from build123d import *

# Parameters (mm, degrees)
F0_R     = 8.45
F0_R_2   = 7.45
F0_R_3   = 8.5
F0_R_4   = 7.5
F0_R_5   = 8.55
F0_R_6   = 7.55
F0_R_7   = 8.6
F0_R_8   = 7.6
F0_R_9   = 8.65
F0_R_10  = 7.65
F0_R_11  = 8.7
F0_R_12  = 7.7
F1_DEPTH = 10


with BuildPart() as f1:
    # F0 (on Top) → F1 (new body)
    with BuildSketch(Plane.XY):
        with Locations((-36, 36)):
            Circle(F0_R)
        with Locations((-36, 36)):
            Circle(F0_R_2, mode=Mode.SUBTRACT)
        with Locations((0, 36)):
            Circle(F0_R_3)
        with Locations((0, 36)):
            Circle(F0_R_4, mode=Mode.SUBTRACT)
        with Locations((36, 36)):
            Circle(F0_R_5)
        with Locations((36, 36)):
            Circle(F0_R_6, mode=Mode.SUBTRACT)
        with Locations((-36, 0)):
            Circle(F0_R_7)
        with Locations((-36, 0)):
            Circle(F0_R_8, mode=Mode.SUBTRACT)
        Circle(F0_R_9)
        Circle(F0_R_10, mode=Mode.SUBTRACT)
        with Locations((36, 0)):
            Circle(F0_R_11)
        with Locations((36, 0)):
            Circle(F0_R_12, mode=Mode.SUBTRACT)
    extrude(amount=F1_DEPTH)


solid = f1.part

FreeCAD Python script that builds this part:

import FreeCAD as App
import Part
import Sketcher
Q = App.Units.Quantity

doc = App.newDocument("Part")
body = doc.addObject("PartDesign::Body", "Body")
body.AllowCompound = True

sketch1 = body.newObject("Sketcher::SketchObject", "Sketch")
sketch1.AttachmentSupport = (doc.getObject("XY_Plane"), [""])
sketch1.MapMode = "FlatFace"
sketch1.addGeometry([
    Part.Circle(App.Vector(-36, 36, 0), App.Vector(0, 0, 1), 8),
    Part.Circle(App.Vector(-36, 36, 0), App.Vector(0, 0, 1), 7),
    Part.Circle(App.Vector(0, 36, 0), App.Vector(0, 0, 1), 8),
    Part.Circle(App.Vector(0, 36, 0), App.Vector(0, 0, 1), 8),
    Part.Circle(App.Vector(36, 36, 0), App.Vector(0, 0, 1), 9),
    Part.Circle(App.Vector(36, 36, 0), App.Vector(0, 0, 1), 8),
    Part.Circle(App.Vector(-36, 0, 0), App.Vector(0, 0, 1), 9),
    Part.Circle(App.Vector(-36, 0, 0), App.Vector(0, 0, 1), 8),
    Part.Circle(App.Vector(0, 0, 0), App.Vector(0, 0, 1), 9),
    Part.Circle(App.Vector(0, 0, 0), App.Vector(0, 0, 1), 8),
    Part.Circle(App.Vector(36, 0, 0), App.Vector(0, 0, 1), 9),
    Part.Circle(App.Vector(36, 0, 0), App.Vector(0, 0, 1), 8),
], False)
sketch1.addConstraint([
    Sketcher.Constraint("Coincident", 8, 3, -1, 1),
    Sketcher.Constraint("Coincident", 9, 3, -1, 1),
    Sketcher.Constraint("Coincident", 1, 3, 0, 3),
    Sketcher.Constraint("Coincident", 3, 3, 2, 3),
    Sketcher.Constraint("Coincident", 5, 3, 4, 3),
    Sketcher.Constraint("Coincident", 7, 3, 6, 3),
    Sketcher.Constraint("Coincident", 11, 3, 10, 3),
    Sketcher.Constraint("Symmetric", 6, 3, 10, 3, -1, 1),
    Sketcher.Constraint("Symmetric", 0, 3, 4, 3, -2),
    Sketcher.Constraint("PointOnObject", 2, 3, -2),
    Sketcher.Constraint("PointOnObject", 6, 3, -1),
    Sketcher.Constraint("Horizontal", 1, 3, 2, 3),
    Sketcher.Constraint("Vertical", 1, 3, 6, 3),
    Sketcher.Constraint("Diameter", 2, Q("17 mm")),
    Sketcher.Constraint("Diameter", 3, Q("15 mm")),
    Sketcher.Constraint("Diameter", 0, Q("16.9 mm")),
    Sketcher.Constraint("Diameter", 1, Q("14.9 mm")),
    Sketcher.Constraint("Diameter", 4, Q("17.1 mm")),
    Sketcher.Constraint("Diameter", 5, Q("15.1 mm")),
    Sketcher.Constraint("Diameter", 6, Q("17.2 mm")),
    Sketcher.Constraint("Diameter", 7, Q("15.2 mm")),
    Sketcher.Constraint("Diameter", 8, Q("17.3 mm")),
    Sketcher.Constraint("Diameter", 9, Q("15.3 mm")),
    Sketcher.Constraint("Diameter", 10, Q("17.4 mm")),
    Sketcher.Constraint("Diameter", 11, Q("15.4 mm")),
    Sketcher.Constraint("DistanceX", 0, 3, -1, 1, Q("36 mm")),
    Sketcher.Constraint("DistanceY", -1, 1, 0, 3, Q("36 mm")),
])
pad1 = body.newObject("PartDesign::Pad", "Pad")
pad1.Profile = sketch1
pad1.Length = 10

doc.recompute()
